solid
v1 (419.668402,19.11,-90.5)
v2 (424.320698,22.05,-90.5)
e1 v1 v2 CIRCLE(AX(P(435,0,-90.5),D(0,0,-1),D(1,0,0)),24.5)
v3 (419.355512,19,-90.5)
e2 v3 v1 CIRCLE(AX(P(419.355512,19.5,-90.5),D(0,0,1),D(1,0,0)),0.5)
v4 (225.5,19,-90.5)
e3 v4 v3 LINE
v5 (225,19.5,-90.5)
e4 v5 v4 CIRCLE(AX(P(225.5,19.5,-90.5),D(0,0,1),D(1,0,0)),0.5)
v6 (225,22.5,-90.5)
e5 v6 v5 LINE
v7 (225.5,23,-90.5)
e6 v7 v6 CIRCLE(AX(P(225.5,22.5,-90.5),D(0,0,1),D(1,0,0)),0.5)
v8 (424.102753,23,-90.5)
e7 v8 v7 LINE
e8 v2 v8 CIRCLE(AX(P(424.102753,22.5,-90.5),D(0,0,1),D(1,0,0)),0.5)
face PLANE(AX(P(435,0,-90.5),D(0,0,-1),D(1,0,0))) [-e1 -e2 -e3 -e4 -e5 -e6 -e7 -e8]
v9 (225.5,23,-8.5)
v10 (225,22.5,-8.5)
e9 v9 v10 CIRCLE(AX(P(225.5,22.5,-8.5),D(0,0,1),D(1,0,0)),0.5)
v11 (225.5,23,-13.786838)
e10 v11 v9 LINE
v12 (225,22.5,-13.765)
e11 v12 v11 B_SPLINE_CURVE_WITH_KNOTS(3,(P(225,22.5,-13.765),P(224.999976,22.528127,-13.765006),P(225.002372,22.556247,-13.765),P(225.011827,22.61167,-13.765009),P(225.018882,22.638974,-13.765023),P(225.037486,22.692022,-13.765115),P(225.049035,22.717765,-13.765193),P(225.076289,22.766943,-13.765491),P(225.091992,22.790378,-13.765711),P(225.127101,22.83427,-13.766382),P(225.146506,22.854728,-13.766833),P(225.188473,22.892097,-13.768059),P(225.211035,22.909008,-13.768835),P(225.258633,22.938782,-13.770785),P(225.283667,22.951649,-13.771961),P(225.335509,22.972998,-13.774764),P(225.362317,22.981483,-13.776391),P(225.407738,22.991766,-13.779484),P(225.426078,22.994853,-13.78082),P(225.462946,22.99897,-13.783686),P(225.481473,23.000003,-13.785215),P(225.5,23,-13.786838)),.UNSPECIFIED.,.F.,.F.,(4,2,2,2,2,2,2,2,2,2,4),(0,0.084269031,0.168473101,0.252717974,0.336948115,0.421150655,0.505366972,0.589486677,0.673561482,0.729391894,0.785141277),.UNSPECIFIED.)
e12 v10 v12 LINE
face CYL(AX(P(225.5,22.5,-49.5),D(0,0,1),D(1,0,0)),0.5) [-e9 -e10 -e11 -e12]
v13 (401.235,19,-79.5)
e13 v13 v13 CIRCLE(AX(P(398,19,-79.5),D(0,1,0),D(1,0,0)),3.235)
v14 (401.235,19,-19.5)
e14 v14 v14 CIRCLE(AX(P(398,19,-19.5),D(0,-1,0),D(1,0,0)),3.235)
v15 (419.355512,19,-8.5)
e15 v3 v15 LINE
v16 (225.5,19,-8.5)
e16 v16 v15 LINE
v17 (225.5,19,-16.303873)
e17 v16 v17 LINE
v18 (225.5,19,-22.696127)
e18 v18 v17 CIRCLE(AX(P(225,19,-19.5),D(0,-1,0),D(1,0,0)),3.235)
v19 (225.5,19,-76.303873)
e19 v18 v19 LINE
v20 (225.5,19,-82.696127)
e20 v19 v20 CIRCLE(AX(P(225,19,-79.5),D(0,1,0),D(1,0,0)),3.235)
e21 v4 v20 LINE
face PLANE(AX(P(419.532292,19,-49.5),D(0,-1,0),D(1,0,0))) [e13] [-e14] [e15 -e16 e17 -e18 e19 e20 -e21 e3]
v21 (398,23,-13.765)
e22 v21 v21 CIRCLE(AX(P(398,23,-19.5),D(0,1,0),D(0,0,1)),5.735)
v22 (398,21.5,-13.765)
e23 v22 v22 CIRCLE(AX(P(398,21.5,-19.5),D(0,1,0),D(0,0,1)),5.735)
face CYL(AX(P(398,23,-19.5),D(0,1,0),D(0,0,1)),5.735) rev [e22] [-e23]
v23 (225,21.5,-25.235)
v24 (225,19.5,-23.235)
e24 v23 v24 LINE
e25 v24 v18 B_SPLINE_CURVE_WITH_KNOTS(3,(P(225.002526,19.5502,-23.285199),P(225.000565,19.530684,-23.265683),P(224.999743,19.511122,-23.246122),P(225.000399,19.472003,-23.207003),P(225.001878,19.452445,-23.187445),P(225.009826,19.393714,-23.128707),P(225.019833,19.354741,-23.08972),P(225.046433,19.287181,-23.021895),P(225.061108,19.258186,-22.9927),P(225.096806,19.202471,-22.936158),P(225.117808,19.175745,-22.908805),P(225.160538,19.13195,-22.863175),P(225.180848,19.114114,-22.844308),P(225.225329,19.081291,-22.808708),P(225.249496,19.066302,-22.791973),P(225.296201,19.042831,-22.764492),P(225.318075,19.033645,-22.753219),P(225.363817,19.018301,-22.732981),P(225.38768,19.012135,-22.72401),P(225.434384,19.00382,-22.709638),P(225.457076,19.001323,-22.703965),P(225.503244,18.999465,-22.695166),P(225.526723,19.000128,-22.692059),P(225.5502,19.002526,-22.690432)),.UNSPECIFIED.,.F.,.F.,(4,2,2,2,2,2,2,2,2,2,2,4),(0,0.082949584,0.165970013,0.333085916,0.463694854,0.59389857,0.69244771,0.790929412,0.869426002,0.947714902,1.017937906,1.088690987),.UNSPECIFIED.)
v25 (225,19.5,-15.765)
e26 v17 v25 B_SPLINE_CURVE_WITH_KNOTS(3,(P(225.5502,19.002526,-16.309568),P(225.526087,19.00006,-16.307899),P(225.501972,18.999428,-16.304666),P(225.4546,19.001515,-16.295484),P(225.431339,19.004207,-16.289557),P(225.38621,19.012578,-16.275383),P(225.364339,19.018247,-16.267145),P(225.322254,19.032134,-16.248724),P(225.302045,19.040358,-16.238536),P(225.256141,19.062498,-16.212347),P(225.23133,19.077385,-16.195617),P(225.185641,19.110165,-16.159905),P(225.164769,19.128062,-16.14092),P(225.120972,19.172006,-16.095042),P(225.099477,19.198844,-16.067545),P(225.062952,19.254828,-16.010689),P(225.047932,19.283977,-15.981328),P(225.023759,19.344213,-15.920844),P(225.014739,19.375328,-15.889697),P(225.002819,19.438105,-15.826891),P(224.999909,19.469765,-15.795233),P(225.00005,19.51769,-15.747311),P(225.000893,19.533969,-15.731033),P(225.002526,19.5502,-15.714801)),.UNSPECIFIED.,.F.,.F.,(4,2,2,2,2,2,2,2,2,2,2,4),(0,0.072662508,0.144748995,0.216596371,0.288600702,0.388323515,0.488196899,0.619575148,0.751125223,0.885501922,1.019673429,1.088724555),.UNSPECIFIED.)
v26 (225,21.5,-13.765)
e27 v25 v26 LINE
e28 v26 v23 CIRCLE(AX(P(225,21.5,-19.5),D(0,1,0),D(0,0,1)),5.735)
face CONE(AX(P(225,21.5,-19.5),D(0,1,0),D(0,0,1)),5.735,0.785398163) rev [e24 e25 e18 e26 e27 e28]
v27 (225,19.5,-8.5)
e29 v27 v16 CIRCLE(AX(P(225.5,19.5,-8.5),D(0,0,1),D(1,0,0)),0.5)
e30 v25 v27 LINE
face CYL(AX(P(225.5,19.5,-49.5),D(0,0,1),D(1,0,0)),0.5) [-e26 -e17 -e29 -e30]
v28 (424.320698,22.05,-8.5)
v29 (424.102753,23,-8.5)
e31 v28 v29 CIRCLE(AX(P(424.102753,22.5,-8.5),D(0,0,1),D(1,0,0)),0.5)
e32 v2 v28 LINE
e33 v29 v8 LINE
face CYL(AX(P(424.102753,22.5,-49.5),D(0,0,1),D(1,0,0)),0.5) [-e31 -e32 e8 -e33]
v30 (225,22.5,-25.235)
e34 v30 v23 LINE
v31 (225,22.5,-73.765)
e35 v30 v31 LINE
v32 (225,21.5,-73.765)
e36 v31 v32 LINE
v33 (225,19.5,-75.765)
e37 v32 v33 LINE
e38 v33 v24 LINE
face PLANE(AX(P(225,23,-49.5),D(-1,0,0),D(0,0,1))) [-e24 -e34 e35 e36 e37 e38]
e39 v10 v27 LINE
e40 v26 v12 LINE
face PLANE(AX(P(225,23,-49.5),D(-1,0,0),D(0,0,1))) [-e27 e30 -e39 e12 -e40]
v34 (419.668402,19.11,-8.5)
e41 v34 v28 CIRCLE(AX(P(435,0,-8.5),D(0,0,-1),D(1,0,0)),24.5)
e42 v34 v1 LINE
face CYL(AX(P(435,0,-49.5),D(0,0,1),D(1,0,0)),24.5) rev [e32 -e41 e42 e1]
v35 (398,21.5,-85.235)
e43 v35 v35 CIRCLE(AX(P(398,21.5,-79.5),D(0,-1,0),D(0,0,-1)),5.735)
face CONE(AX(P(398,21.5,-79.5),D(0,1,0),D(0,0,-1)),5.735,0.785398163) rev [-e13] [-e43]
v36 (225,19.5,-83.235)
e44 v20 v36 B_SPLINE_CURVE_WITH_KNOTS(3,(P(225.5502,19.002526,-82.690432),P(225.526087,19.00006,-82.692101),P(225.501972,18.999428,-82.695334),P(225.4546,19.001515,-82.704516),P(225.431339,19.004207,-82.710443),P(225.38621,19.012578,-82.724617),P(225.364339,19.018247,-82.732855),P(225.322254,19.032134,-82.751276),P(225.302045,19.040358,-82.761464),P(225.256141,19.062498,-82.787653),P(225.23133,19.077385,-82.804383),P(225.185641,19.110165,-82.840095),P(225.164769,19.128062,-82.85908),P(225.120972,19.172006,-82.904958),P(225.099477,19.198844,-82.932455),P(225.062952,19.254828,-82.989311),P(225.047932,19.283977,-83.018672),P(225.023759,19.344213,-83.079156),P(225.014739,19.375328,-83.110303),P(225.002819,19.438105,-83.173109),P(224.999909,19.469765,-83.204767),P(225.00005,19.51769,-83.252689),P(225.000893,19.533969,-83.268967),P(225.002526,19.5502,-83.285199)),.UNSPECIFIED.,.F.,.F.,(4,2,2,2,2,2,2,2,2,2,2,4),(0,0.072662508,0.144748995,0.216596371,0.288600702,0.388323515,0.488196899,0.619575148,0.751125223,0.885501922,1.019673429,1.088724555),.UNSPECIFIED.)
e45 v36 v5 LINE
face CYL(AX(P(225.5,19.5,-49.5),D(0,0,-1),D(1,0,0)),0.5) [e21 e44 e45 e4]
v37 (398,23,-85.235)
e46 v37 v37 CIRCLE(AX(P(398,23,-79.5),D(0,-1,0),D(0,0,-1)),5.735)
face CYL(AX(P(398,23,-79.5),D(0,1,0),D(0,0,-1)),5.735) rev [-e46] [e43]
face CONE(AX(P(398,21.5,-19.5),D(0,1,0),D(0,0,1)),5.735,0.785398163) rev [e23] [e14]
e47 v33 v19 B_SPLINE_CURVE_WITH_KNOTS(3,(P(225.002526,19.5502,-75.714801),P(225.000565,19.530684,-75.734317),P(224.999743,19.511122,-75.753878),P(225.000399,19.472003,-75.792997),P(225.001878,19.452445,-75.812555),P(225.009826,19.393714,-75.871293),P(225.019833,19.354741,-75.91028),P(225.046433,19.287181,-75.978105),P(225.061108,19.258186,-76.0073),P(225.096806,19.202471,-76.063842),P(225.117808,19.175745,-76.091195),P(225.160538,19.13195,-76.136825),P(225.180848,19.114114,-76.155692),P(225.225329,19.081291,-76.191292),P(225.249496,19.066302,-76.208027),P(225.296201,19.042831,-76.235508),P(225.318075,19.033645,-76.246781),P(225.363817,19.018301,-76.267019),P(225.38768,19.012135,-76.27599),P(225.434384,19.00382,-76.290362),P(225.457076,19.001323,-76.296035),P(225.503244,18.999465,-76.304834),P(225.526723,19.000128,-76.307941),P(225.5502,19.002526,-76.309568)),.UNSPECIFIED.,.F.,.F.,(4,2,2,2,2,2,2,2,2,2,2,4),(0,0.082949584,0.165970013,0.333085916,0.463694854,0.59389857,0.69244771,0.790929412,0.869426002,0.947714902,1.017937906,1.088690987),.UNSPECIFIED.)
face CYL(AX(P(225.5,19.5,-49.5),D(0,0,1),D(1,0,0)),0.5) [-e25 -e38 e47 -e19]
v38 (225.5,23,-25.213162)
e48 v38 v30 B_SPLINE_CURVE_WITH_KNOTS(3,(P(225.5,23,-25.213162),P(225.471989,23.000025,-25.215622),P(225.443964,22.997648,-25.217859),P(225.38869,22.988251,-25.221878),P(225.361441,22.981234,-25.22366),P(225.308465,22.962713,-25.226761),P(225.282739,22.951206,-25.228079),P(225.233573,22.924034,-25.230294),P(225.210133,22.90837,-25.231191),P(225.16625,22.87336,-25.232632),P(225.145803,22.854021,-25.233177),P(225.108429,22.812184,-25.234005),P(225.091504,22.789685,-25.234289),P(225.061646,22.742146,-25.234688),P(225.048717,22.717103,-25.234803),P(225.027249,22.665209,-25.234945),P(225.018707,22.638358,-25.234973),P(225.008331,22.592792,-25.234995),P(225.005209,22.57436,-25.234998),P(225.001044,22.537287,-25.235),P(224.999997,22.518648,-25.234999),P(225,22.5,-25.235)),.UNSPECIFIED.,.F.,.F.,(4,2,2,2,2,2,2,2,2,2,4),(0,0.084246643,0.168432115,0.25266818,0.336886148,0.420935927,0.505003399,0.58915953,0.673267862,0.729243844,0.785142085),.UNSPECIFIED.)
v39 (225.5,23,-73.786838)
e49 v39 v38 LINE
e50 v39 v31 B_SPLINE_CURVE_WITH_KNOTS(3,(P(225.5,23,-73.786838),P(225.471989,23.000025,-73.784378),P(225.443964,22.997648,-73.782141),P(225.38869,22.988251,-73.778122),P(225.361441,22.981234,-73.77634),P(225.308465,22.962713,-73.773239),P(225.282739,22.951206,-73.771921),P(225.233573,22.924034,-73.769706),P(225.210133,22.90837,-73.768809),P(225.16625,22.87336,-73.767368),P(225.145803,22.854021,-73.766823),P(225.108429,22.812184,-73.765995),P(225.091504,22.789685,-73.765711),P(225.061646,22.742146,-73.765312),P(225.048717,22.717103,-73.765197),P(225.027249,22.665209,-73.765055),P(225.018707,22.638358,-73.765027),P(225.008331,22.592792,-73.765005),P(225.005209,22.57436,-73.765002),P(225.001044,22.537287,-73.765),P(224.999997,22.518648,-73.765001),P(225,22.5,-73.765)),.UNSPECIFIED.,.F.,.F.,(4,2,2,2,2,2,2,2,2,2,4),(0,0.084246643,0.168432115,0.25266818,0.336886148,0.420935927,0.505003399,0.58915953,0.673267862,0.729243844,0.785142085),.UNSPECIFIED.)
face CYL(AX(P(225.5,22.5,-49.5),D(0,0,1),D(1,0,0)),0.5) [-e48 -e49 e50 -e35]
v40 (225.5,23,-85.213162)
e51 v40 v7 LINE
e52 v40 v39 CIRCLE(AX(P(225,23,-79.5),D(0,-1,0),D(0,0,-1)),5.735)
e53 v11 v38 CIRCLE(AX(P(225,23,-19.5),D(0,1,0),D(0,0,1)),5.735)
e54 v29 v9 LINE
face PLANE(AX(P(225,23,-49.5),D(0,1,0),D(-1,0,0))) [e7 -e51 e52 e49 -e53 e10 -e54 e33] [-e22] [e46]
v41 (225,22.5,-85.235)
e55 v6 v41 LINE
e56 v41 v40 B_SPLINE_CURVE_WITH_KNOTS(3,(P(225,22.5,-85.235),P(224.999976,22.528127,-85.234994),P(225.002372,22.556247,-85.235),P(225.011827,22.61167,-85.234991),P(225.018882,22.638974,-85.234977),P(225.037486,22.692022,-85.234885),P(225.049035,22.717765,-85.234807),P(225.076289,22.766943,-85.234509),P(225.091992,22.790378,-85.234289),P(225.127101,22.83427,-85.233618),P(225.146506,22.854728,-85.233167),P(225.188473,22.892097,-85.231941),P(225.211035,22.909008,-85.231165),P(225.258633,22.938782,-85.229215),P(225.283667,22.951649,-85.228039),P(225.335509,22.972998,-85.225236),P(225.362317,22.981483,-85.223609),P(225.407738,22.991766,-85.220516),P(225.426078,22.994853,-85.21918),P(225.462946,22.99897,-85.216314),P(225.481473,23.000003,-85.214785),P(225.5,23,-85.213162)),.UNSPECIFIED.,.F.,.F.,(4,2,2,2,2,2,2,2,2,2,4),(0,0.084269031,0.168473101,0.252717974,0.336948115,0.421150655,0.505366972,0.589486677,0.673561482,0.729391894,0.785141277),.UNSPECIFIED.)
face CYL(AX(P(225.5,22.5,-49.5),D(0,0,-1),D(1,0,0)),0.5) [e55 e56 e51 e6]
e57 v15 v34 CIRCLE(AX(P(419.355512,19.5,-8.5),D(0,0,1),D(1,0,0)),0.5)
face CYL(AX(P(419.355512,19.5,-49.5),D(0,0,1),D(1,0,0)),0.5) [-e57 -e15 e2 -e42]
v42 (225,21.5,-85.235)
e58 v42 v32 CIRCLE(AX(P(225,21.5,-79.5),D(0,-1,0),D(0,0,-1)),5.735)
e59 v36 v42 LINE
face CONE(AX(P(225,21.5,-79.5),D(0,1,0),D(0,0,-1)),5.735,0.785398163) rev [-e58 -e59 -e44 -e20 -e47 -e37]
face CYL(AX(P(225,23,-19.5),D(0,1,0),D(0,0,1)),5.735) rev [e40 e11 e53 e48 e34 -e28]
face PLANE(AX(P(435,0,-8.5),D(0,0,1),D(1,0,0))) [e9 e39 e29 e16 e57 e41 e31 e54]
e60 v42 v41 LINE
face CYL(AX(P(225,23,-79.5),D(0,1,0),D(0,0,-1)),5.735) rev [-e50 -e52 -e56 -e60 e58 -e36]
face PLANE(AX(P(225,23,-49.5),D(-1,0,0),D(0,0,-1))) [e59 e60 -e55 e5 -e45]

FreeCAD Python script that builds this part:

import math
import FreeCAD as App
import Part
import Sketcher

V = App.Vector
Q = App.Units.Quantity


def edges_at(feature, points):
    """Names of the edges that pass closest to the given points."""
    edges = feature.Shape.Edges
    near = lambda p: min(range(len(edges)), key=lambda i: edges[i].distToShape(Part.Vertex(*p))[0])
    return sorted({f"Edge{near(p) + 1}" for p in points})


def add_polygon(sketch, points):
    """Adds a closed chain of lines whose ends are joined by coincident constraints."""
    first, n = sketch.GeometryCount, len(points)
    for a, b in zip(points, points[1:] + points[:1]):
        sketch.addGeometry(Part.LineSegment(App.Vector(*a, 0), App.Vector(*b, 0)), False)
    for i in range(n):
        sketch.addConstraint(Sketcher.Constraint("Coincident", first + i, 2, first + (i + 1) % n, 1))

doc = App.newDocument("Part")
body = doc.addObject("PartDesign::Body", "Body")

# Sketch on XY plane
sketch1 = body.newObject("Sketcher::SketchObject", "Sketch")
sketch1.AttachmentSupport = (doc.getObject("XY_Plane"), [""])
sketch1.MapMode = "FlatFace"
sketch1.AttachmentOffset = App.Placement(V(0, 0, -8.5), App.Rotation())
sketch1.addGeometry([
    Part.LineSegment(V(426.6, 23, 0), V(225, 23, 0)),
    Part.LineSegment(V(225, 23, 0), V(225, 19, 0)),
    Part.LineSegment(V(225, 19, 0), V(419.5, 19, 0)),
    Part.ArcOfCircle(Part.Circle(V(435, 0, 0), V(0, 0, 1), 24.5), math.radians(110.15), math.radians(129.15)),
], False)
sketch1.addConstraint([
    Sketcher.Constraint("Coincident", 0, 2, 1, 1),
    Sketcher.Constraint("Coincident", 1, 2, 2, 1),
    Sketcher.Constraint("Coincident", 2, 2, 3, 2),
    Sketcher.Constraint("Coincident", 3, 1, 0, 1),
    Sketcher.Constraint("Horizontal", 0),
    Sketcher.Constraint("Vertical", 1),
    Sketcher.Constraint("Horizontal", 2),
    Sketcher.Constraint("PointOnObject", 3, 3, -1),
    Sketcher.Constraint("Radius", 3, 24.5),
    Sketcher.Constraint("DistanceY", 1, 2, 1, 1, 4.0),
    Sketcher.Constraint("DistanceX", -1, 1, 3, 3, 435.0),
    Sketcher.Constraint("DistanceX", -1, 1, 0, 2, 225.0),
    Sketcher.Constraint("DistanceY", -1, 1, 0, 2, 23.0),
])
pad1 = body.newObject("PartDesign::Pad", "Pad")
pad1.Profile = sketch1
pad1.Length = 41
pad1.Reversed = True
doc.recompute()

fillet = body.newObject("PartDesign::Fillet", "Fillet")
fillet.Base = (pad1, edges_at(pad1, [
    (225, 23, -29),
    (426.559, 23, -29),
    (419.532, 19, -29),
    (225, 19, -29),
]))
fillet.Radius = 0.5

# Sketch on YZ plane
sketch2 = body.newObject("Sketcher::SketchObject", "Sketch001")
sketch2.AttachmentSupport = (doc.getObject("YZ_Plane"), [""])
sketch2.MapMode = "FlatFace"
sketch2.AttachmentOffset = App.Placement(V(0, 0, 398), App.Rotation())
add_polygon(sketch2, [(17.35, -19.5), (23, -19.5), (23, -13.77), (21.5, -13.77), (18.52, -16.75), (19, -16.75)])  # lines 0-5
sketch2.addGeometry(Part.LineSegment(V(23, -19.5, 0), V(17.35, -19.5, 0)), True)  # axis
sketch2.addConstraint([
    Sketcher.Constraint("Horizontal", 0),
    Sketcher.Constraint("Vertical", 1),
    Sketcher.Constraint("Horizontal", 2),
    Sketcher.Constraint("Horizontal", 4),
    Sketcher.Constraint("Horizontal", 6),
    Sketcher.Constraint("Coincident", 6, 1, 0, 2),
    Sketcher.Constraint("Equal", 0, 6),
    Sketcher.Constraint("Angle", 3, Q("-135 deg")),
    Sketcher.Constraint("Angle", 5, Q("-121 deg")),
    Sketcher.Constraint("DistanceX", 2, 2, 2, 1, 1.5),
    Sketcher.Constraint("DistanceX", -1, 1, 0, 2, 23.0),
    Sketcher.Constraint("DistanceX", -1, 1, 4, 2, 19.0),
    Sketcher.Constraint("DistanceY", 0, 2, -1, 1, 19.5),
    Sketcher.Constraint("DistanceX", 4, 1, 4, 2, 0.485),
    Sketcher.Constraint("DistanceY", 1, 1, 1, 2, 5.735),
])
groove = body.newObject("PartDesign::Groove", "Groove")
groove.Profile = sketch2
groove.ReferenceAxis = (sketch2, ["Axis0"])
groove.Angle = 360
doc.recompute()

linearpattern = body.newObject("PartDesign::LinearPattern", "LinearPattern")
linearpattern.Originals = [groove]
linearpattern.Direction = (doc.getObject("X_Axis"), [""])
linearpattern.Mode = "offset"
linearpattern.Offset = 173
linearpattern.Occurrences = 2
linearpattern.Reversed = True
body.Tip = linearpattern
body2 = doc.addObject("PartDesign::Body", "Body001")
doc.recompute()

body2.BaseFeature = body
doc.recompute()

mirroring = doc.addObject("Part::Mirroring", "Mirroring")
mirroring.Source = body
mirroring.Base = V(435, 0, -49.5)
mirroring.Normal = V(0, 0, 1)
body3 = doc.addObject("PartDesign::Body", "Body002")
body3.BaseFeature = mirroring
boolean = body2.newObject("PartDesign::Boolean", "Boolean")
boolean.Type = "Fuse"
boolean.addObjects([body3])
doc.recompute()
mirroring.Visibility = False

doc.recompute()
